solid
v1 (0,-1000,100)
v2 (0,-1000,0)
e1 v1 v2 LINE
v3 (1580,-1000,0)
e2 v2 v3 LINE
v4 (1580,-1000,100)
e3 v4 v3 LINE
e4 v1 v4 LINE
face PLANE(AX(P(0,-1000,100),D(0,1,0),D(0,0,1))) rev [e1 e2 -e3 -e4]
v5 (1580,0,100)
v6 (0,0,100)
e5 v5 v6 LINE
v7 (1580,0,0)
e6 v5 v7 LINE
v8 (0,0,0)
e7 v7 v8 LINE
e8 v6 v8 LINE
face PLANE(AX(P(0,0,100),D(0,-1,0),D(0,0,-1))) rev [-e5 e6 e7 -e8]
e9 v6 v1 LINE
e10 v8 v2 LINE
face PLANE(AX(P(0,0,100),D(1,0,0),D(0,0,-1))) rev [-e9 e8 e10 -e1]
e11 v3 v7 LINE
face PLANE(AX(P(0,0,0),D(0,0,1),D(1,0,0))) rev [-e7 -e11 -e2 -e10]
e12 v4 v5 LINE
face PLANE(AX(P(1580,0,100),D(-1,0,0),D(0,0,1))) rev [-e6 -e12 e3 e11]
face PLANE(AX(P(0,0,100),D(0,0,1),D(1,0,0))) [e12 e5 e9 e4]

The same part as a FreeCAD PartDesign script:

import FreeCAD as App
import Part
import Sketcher
from FreeCAD import Vector

doc = App.newDocument("Part")
body = doc.addObject("PartDesign::Body", "Body")

# Sketch on XY plane
sketch1 = body.newObject("Sketcher::SketchObject", "Sketch")
sketch1.AttachmentSupport = (doc.getObject("XY_Plane"), [""])
sketch1.MapMode = "FlatFace"
sketch1.addGeometry([
    Part.LineSegment(Vector(0, 0, 0), Vector(0, -1000, 0)),
    Part.LineSegment(Vector(0, -1000, 0), Vector(1580, -1000, 0)),
    Part.LineSegment(Vector(1580, -1000, 0), Vector(1580, 0, 0)),
    Part.LineSegment(Vector(1580, 0, 0), Vector(0, 0, 0)),
], False)
sketch1.addConstraint([
    Sketcher.Constraint("Coincident", 0, 2, 1, 1),
    Sketcher.Constraint("Coincident", 1, 2, 2, 1),
    Sketcher.Constraint("Coincident", 2, 2, 3, 1),
    Sketcher.Constraint("Coincident", 3, 2, 0, 1),
    Sketcher.Constraint("Vertical", 0),
    Sketcher.Constraint("Horizontal", 1),
    Sketcher.Constraint("Vertical", 2),
    Sketcher.Constraint("Horizontal", 3),
    Sketcher.Constraint("Coincident", 3, 2, -1, 1),
    Sketcher.Constraint("DistanceX", 1, 1, 1, 2, 1580.0),
    Sketcher.Constraint("DistanceY", 0, 2, 0, 1, 1000.0),
])
pad1 = body.newObject("PartDesign::Pad", "Pad")
pad1.Profile = sketch1
pad1.Length = 100

doc.recompute()
